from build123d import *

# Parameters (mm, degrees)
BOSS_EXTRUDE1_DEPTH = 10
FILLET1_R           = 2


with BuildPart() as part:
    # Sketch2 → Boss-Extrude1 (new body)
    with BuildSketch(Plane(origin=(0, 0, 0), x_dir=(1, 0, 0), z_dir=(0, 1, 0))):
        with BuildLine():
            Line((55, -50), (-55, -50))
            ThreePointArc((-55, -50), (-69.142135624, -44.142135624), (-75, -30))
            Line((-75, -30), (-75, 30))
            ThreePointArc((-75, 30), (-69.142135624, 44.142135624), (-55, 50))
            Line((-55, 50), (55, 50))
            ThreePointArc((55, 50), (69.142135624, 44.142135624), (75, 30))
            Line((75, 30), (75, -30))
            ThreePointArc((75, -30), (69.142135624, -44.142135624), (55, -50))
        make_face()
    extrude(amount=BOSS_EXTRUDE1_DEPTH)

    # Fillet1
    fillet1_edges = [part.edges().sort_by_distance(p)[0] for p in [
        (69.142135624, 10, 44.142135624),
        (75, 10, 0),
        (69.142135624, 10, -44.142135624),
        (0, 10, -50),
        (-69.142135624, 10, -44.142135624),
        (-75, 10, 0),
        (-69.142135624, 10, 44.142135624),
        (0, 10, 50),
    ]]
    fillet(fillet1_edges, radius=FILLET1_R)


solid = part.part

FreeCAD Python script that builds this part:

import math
import FreeCAD as App
import Part
import Sketcher
from FreeCAD import Vector
Q = App.Units.Quantity


def edges_at(feature, points):
    """Names of the edges that pass closest to the given points."""
    edges = feature.Shape.Edges
    near = lambda p: min(range(len(edges)), key=lambda i: edges[i].distToShape(Part.Vertex(*p))[0])
    return sorted({f"Edge{near(p) + 1}" for p in points})

doc = App.newDocument("Part")
body = doc.addObject("PartDesign::Body", "Body")

# Sketch on XZ plane
sketch1 = body.newObject("Sketcher::SketchObject", "Sketch")
sketch1.AttachmentSupport = (doc.getObject("XZ_Plane"), [""])
sketch1.MapMode = "FlatFace"
sketch1.addGeometry([
    Part.LineSegment(Vector(-55, 50, 0), Vector(55, 50, 0)),  # 0
    Part.ArcOfCircle(Part.Circle(Vector(55, 30, 0), Vector(0, 0, 1), 20), math.radians(0), math.radians(90)),  # 1
    Part.LineSegment(Vector(75, 30, 0), Vector(75, -30, 0)),  # 2
    Part.ArcOfCircle(Part.Circle(Vector(55, -30, 0), Vector(0, 0, 1), 20), math.radians(-90), math.radians(0)),  # 3
    Part.LineSegment(Vector(55, -50, 0), Vector(-55, -50, 0)),  # 4
    Part.ArcOfCircle(Part.Circle(Vector(-55, -30, 0), Vector(0, 0, 1), 20), math.radians(180), math.radians(270)),  # 5
    Part.LineSegment(Vector(-75, -30, 0), Vector(-75, 30, 0)),  # 6
    Part.ArcOfCircle(Part.Circle(Vector(-55, 30, 0), Vector(0, 0, 1), 20), math.radians(90), math.radians(180)),  # 7
], False)
sketch1.addConstraint([
    Sketcher.Constraint("Tangent", 0, 2, 1, 2),
    Sketcher.Constraint("Tangent", 1, 1, 2, 1),
    Sketcher.Constraint("Tangent", 2, 2, 3, 2),
    Sketcher.Constraint("Tangent", 3, 1, 4, 1),
    Sketcher.Constraint("Tangent", 4, 2, 5, 2),
    Sketcher.Constraint("Tangent", 5, 1, 6, 1),
    Sketcher.Constraint("Tangent", 6, 2, 7, 2),
    Sketcher.Constraint("Tangent", 7, 1, 0, 1),
    Sketcher.Constraint("Horizontal", 0),
    Sketcher.Constraint("Vertical", 2),
    Sketcher.Constraint("Horizontal", 4),
    Sketcher.Constraint("Vertical", 6),
    Sketcher.Constraint("Equal", 1, 3),
    Sketcher.Constraint("Equal", 3, 5),
    Sketcher.Constraint("Equal", 5, 7),
    Sketcher.Constraint("Symmetric", 1, 3, 5, 3, -1, 1),
    Sketcher.Constraint("Radius", 1, Q("20 mm")),
    Sketcher.Constraint("DistanceX", 0, 1, 0, 2, Q("110 mm")),
    Sketcher.Constraint("DistanceY", 2, 2, 2, 1, Q("60 mm")),
])
pad1 = body.newObject("PartDesign::Pad", "Pad")
pad1.Profile = sketch1
pad1.Length = 10
pad1.Reversed = True
doc.recompute()

fillet = body.newObject("PartDesign::Fillet", "Fillet")
fillet.Base = (pad1, edges_at(pad1, [
    (69.142, 10, 44.142),
    (75, 10, 0),
    (69.142, 10, -44.142),
    (0, 10, -50),
    (-69.142, 10, -44.142),
    (-75, 10, 0),
    (-69.142, 10, 44.142),
    (0, 10, 50),
]))
fillet.Radius = 2

doc.recompute()
